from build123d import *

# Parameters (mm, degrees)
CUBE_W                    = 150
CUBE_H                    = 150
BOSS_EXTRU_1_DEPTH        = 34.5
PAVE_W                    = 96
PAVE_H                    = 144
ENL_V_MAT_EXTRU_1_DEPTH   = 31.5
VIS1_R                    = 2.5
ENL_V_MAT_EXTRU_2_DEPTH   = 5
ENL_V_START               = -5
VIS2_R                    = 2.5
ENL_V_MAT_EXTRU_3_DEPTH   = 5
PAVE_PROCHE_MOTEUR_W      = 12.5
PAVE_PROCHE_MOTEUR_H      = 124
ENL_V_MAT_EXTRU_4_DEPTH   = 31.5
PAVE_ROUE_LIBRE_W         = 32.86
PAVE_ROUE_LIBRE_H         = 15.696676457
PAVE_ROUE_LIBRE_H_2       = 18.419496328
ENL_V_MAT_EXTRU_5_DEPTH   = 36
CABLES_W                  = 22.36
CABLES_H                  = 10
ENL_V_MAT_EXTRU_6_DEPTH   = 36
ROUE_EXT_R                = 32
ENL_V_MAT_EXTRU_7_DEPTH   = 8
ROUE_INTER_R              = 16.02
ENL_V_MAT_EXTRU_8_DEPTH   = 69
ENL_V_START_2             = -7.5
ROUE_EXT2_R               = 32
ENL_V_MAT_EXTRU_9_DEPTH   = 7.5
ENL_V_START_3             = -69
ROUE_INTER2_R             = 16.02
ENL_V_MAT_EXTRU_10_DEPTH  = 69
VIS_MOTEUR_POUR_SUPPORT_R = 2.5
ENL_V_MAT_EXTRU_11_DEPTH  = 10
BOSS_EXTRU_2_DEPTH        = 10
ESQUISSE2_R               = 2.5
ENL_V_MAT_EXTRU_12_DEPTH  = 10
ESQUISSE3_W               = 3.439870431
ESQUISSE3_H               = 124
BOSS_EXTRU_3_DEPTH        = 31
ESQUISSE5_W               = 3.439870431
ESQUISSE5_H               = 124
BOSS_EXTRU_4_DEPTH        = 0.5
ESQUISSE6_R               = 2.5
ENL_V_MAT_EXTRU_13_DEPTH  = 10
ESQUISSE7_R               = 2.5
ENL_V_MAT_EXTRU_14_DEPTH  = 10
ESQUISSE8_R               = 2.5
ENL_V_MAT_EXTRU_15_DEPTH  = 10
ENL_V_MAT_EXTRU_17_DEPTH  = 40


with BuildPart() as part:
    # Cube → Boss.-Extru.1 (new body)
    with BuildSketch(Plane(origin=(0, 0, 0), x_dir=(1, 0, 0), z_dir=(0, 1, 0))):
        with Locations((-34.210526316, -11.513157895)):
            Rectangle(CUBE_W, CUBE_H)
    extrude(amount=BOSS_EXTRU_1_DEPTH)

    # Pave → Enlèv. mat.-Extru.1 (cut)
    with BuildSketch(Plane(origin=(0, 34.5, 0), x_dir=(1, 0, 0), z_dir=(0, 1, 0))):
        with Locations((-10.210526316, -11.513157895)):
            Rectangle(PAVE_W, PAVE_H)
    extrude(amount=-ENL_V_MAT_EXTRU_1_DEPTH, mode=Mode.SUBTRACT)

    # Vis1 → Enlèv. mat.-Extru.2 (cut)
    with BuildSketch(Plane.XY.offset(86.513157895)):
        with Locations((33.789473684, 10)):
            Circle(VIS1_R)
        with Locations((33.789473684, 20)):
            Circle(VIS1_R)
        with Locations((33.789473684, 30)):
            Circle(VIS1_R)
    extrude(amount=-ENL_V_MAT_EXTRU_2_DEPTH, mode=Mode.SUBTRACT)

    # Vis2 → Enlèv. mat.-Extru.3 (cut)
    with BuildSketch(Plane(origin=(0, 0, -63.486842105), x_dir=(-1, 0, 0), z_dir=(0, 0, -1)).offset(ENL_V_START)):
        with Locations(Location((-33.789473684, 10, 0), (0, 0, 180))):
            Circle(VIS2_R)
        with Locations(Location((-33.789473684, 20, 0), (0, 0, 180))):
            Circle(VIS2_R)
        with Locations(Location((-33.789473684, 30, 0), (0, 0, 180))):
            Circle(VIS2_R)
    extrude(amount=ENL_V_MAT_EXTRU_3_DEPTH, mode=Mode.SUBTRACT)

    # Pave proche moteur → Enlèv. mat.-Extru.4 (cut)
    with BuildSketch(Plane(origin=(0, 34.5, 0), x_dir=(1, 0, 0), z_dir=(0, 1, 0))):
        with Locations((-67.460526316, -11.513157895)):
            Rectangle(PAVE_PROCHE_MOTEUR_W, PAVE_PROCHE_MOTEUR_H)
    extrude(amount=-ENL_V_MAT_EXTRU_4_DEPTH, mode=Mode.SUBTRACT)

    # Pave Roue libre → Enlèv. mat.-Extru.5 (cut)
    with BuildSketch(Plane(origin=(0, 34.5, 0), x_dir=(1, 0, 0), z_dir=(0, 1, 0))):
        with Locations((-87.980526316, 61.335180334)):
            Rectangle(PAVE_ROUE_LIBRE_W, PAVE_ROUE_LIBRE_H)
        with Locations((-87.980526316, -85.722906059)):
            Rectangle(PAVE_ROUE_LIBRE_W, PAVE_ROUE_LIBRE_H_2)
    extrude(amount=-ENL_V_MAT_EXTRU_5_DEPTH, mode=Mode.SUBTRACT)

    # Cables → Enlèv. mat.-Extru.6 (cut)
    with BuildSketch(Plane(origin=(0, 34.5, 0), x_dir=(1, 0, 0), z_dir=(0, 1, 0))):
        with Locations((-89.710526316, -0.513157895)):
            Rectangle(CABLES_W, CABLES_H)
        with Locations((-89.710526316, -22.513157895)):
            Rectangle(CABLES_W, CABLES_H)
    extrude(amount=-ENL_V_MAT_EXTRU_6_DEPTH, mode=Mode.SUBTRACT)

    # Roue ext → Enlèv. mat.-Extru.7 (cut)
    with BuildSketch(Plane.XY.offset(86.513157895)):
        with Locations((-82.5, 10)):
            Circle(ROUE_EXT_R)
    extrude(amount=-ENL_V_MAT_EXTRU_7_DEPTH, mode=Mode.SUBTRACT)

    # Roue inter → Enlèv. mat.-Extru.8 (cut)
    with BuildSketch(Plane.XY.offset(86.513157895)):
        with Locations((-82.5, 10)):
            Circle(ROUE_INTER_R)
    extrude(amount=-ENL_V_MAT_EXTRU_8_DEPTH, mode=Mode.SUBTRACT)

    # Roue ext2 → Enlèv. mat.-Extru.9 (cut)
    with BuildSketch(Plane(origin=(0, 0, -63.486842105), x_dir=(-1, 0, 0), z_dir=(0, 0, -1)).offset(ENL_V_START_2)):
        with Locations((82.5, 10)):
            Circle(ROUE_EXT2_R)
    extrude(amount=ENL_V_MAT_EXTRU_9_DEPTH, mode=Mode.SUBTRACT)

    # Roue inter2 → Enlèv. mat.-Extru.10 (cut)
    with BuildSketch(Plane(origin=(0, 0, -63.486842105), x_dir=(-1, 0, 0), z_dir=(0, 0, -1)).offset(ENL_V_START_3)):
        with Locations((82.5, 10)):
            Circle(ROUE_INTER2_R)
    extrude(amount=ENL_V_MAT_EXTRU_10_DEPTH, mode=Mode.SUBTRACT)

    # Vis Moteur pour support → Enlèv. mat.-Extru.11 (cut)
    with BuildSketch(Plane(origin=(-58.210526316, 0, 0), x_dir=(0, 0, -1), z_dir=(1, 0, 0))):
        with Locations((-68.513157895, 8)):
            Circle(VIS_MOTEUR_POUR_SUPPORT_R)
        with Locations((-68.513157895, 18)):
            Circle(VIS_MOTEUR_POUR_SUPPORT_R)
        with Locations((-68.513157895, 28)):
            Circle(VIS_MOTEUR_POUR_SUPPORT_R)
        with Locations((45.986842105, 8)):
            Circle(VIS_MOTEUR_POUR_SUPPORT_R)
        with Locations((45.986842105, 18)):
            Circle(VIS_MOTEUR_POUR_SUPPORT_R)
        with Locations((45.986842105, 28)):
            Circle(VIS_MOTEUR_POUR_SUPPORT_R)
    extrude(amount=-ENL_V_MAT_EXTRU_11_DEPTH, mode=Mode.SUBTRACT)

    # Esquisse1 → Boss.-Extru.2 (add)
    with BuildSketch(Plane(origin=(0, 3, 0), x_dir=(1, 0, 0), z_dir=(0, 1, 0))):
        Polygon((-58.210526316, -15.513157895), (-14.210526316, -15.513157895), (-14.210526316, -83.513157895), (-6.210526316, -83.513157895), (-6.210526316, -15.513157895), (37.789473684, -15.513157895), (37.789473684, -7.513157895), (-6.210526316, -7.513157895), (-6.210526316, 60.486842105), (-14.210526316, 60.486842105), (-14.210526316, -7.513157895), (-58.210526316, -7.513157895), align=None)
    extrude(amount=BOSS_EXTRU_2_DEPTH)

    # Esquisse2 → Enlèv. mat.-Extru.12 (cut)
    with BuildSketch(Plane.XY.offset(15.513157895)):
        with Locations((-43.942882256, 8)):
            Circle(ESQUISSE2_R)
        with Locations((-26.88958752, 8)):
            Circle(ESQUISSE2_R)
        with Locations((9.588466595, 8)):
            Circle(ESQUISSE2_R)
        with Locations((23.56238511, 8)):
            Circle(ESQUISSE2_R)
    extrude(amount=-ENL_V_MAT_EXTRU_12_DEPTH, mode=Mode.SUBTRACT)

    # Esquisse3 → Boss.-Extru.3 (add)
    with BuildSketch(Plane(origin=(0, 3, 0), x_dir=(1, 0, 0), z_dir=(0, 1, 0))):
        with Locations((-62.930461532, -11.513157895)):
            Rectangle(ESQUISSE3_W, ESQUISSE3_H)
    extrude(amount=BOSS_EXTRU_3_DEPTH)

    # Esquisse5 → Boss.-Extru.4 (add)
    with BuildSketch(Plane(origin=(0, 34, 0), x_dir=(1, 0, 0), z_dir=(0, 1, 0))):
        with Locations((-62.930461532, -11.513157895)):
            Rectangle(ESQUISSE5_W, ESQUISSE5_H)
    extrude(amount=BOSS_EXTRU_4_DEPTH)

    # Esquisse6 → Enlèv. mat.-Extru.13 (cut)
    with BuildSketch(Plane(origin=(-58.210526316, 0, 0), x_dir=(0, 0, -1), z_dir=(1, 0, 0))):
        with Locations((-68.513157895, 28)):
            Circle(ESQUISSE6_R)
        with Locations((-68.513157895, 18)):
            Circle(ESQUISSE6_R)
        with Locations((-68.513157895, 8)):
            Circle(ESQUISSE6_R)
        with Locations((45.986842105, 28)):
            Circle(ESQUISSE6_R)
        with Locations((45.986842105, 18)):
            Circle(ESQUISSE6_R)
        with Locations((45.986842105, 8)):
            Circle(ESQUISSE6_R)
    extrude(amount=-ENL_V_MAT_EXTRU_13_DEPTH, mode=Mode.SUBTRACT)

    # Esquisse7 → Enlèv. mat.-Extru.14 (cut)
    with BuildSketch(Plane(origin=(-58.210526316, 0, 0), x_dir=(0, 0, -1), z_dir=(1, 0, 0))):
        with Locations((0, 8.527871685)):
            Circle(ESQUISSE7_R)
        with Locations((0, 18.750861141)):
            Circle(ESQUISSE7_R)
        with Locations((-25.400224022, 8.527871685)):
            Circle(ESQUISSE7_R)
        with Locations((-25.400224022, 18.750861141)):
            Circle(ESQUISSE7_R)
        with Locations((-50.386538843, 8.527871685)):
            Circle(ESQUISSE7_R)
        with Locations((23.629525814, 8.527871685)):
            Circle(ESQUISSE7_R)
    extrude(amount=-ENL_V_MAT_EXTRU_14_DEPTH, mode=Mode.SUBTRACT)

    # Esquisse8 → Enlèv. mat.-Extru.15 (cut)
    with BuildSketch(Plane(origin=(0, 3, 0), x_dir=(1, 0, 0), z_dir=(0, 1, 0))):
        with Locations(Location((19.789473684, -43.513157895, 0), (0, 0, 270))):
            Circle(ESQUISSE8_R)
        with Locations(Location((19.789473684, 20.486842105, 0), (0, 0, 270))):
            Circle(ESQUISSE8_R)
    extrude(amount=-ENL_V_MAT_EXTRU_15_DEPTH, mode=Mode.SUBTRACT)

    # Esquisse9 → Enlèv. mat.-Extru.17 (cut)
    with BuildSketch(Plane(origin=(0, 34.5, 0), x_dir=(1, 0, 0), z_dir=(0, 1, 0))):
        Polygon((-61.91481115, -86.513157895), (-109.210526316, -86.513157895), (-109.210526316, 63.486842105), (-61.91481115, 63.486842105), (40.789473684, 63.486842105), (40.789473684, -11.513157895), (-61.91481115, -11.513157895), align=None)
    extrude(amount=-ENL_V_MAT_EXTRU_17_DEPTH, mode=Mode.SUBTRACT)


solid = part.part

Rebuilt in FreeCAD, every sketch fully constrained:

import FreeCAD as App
import Part
import Sketcher
from FreeCAD import Vector

doc = App.newDocument("Part")
body = doc.addObject("PartDesign::Body", "Body")

sketch1 = doc.addObject("Sketcher::SketchObject", "Sketch")
body.addObject(sketch1)
sketch1.AttachmentSupport = (doc.XZ_Plane, [""])
sketch1.MapMode = "FlatFace"
sketch1.addGeometry(Part.LineSegment(Vector(-109, -63, 0), Vector(-109, 87, 0)), False)
sketch1.addGeometry(Part.LineSegment(Vector(-109, 87, 0), Vector(41, 87, 0)), False)
sketch1.addGeometry(Part.LineSegment(Vector(41, 87, 0), Vector(41, -63, 0)), False)
sketch1.addGeometry(Part.LineSegment(Vector(41, -63, 0), Vector(-109, -63, 0)), False)
sketch1.addConstraint(Sketcher.Constraint("Coincident", 0, 2, 1, 1))
sketch1.addConstraint(Sketcher.Constraint("Coincident", 1, 2, 2, 1))
sketch1.addConstraint(Sketcher.Constraint("Coincident", 2, 2, 3, 1))
sketch1.addConstraint(Sketcher.Constraint("Coincident", 3, 2, 0, 1))
sketch1.addConstraint(Sketcher.Constraint("Vertical", 0))
sketch1.addConstraint(Sketcher.Constraint("Horizontal", 1))
sketch1.addConstraint(Sketcher.Constraint("Vertical", 2))
sketch1.addConstraint(Sketcher.Constraint("Horizontal", 3))
sketch1.addConstraint(Sketcher.Constraint("Equal", 3, 0))
sketch1.addConstraint(Sketcher.Constraint("DistanceX", 1, 1, 1, 2, 150.0))
sketch1.addConstraint(Sketcher.Constraint("DistanceX", 0, 2, -1, 1, 109.210526))
sketch1.addConstraint(Sketcher.Constraint("DistanceY", -1, 1, 0, 2, 86.513158))
pad1 = doc.addObject("PartDesign::Pad", "Pad")
body.addObject(pad1)
pad1.Profile = sketch1
pad1.Length = 34.5
pad1.Reversed = True

sketch2 = doc.addObject("Sketcher::SketchObject", "Sketch001")
body.addObject(sketch2)
sketch2.AttachmentSupport = (doc.XZ_Plane, [""])
sketch2.MapMode = "FlatFace"
sketch2.AttachmentOffset = App.Placement(Vector(0, 0, -34.5), App.Rotation())
sketch2.addGeometry(Part.LineSegment(Vector(-58, -60, 0), Vector(-58, 84, 0)), False)
sketch2.addGeometry(Part.LineSegment(Vector(-58, 84, 0), Vector(38, 84, 0)), False)
sketch2.addGeometry(Part.LineSegment(Vector(38, 84, 0), Vector(38, -60, 0)), False)
sketch2.addGeometry(Part.LineSegment(Vector(38, -60, 0), Vector(-58, -60, 0)), False)
sketch2.addConstraint(Sketcher.Constraint("Coincident", 0, 2, 1, 1))
sketch2.addConstraint(Sketcher.Constraint("Coincident", 1, 2, 2, 1))
sketch2.addConstraint(Sketcher.Constraint("Coincident", 2, 2, 3, 1))
sketch2.addConstraint(Sketcher.Constraint("Coincident", 3, 2, 0, 1))
sketch2.addConstraint(Sketcher.Constraint("Vertical", 0))
sketch2.addConstraint(Sketcher.Constraint("Horizontal", 1))
sketch2.addConstraint(Sketcher.Constraint("Vertical", 2))
sketch2.addConstraint(Sketcher.Constraint("Horizontal", 3))
sketch2.addConstraint(Sketcher.Constraint("DistanceX", 1, 1, 1, 2, 96.0))
sketch2.addConstraint(Sketcher.Constraint("DistanceY", 0, 1, 0, 2, 144.0))
sketch2.addConstraint(Sketcher.Constraint("DistanceX", 0, 2, -1, 1, 58.210526))
sketch2.addConstraint(Sketcher.Constraint("DistanceY", -1, 1, 0, 2, 83.513158))
pocket1 = doc.addObject("PartDesign::Pocket", "Pocket")
body.addObject(pocket1)
pocket1.Profile = sketch2
pocket1.Length = 31.5
pocket1.Reversed = True

sketch3 = doc.addObject("Sketcher::SketchObject", "Sketch002")
body.addObject(sketch3)
sketch3.AttachmentSupport = (doc.XY_Plane, [""])
sketch3.MapMode = "FlatFace"
sketch3.AttachmentOffset = App.Placement(Vector(0, 0, 86.513158), App.Rotation())
sketch3.addGeometry(Part.Circle(Vector(33.8, 10, 0), Vector(0, 0, 1), 2.5), False)
sketch3.addGeometry(Part.Circle(Vector(33.8, 20, 0), Vector(0, 0, 1), 2.5), False)
sketch3.addGeometry(Part.Circle(Vector(33.8, 30, 0), Vector(0, 0, 1), 2.5), False)
sketch3.addConstraint(Sketcher.Constraint("Equal", 0, 1))
sketch3.addConstraint(Sketcher.Constraint("Equal", 1, 2))
sketch3.addConstraint(Sketcher.Constraint("Vertical", 0, 3, 1, 3))
sketch3.addConstraint(Sketcher.Constraint("Vertical", 1, 3, 2, 3))
sketch3.addConstraint(Sketcher.Constraint("Diameter", 0, 5.0))
sketch3.addConstraint(Sketcher.Constraint("DistanceY", -1, 1, 0, 3, 10.0))
sketch3.addConstraint(Sketcher.Constraint("DistanceY", -1, 1, 1, 3, 20.0))
sketch3.addConstraint(Sketcher.Constraint("DistanceY", -1, 1, 2, 3, 30.0))
sketch3.addConstraint(Sketcher.Constraint("DistanceX", -1, 1, 0, 3, 33.789474))
pocket2 = doc.addObject("PartDesign::Pocket", "Pocket001")
body.addObject(pocket2)
pocket2.Profile = sketch3
pocket2.Length = 5

sketch4 = doc.addObject("Sketcher::SketchObject", "Sketch003")
body.addObject(sketch4)
sketch4.AttachmentSupport = (doc.XY_Plane, [""])
sketch4.MapMode = "FlatFace"
sketch4.AttachmentOffset = App.Placement(Vector(0, 0, -58.486842), App.Rotation())
sketch4.addGeometry(Part.Circle(Vector(33.8, 10, 0), Vector(0, 0, 1), 2.5), False)
sketch4.addGeometry(Part.Circle(Vector(33.8, 20, 0), Vector(0, 0, 1), 2.5), False)
sketch4.addGeometry(Part.Circle(Vector(33.8, 30, 0), Vector(0, 0, 1), 2.5), False)
sketch4.addConstraint(Sketcher.Constraint("Equal", 0, 1))
sketch4.addConstraint(Sketcher.Constraint("Equal", 1, 2))
sketch4.addConstraint(Sketcher.Constraint("Vertical", 0, 3, 1, 3))
sketch4.addConstraint(Sketcher.Constraint("Vertical", 1, 3, 2, 3))
sketch4.addConstraint(Sketcher.Constraint("Diameter", 0, 5.0))
sketch4.addConstraint(Sketcher.Constraint("DistanceY", -1, 1, 0, 3, 10.0))
sketch4.addConstraint(Sketcher.Constraint("DistanceY", -1, 1, 1, 3, 20.0))
sketch4.addConstraint(Sketcher.Constraint("DistanceY", -1, 1, 2, 3, 30.0))
sketch4.addConstraint(Sketcher.Constraint("DistanceX", -1, 1, 0, 3, 33.789474))
pocket3 = doc.addObject("PartDesign::Pocket", "Pocket002")
body.addObject(pocket3)
pocket3.Profile = sketch4
pocket3.Length = 5

sketch5 = doc.addObject("Sketcher::SketchObject", "Sketch004")
body.addObject(sketch5)
sketch5.AttachmentSupport = (doc.XZ_Plane, [""])
sketch5.MapMode = "FlatFace"
sketch5.AttachmentOffset = App.Placement(Vector(0, 0, -34.5), App.Rotation())
sketch5.addGeometry(Part.LineSegment(Vector(-74, -50, 0), Vector(-74, 74, 0)), False)
sketch5.addGeometry(Part.LineSegment(Vector(-74, 74, 0), Vector(-61, 74, 0)), False)
sketch5.addGeometry(Part.LineSegment(Vector(-61, 74, 0), Vector(-61, -50, 0)), False)
sketch5.addGeometry(Part.LineSegment(Vector(-61, -50, 0), Vector(-74, -50, 0)), False)
sketch5.addConstraint(Sketcher.Constraint("Coincident", 0, 2, 1, 1))
sketch5.addConstraint(Sketcher.Constraint("Coincident", 1, 2, 2, 1))
sketch5.addConstraint(Sketcher.Constraint("Coincident", 2, 2, 3, 1))
sketch5.addConstraint(Sketcher.Constraint("Coincident", 3, 2, 0, 1))
sketch5.addConstraint(Sketcher.Constraint("Vertical", 0))
sketch5.addConstraint(Sketcher.Constraint("Horizontal", 1))
sketch5.addConstraint(Sketcher.Constraint("Vertical", 2))
sketch5.addConstraint(Sketcher.Constraint("Horizontal", 3))
sketch5.addConstraint(Sketcher.Constraint("DistanceY", 0, 1, 0, 2, 124.0))
sketch5.addConstraint(Sketcher.Constraint("DistanceX", 1, 1, 1, 2, 12.5))
sketch5.addConstraint(Sketcher.Constraint("DistanceX", 0, 2, -1, 1, 73.710526))
sketch5.addConstraint(Sketcher.Constraint("DistanceY", -1, 1, 0, 2, 73.513158))
pocket4 = doc.addObject("PartDesign::Pocket", "Pocket003")
body.addObject(pocket4)
pocket4.Profile = sketch5
pocket4.Length = 31.5
pocket4.Reversed = True

sketch6 = doc.addObject("Sketcher::SketchObject", "Sketch005")
body.addObject(sketch6)
sketch6.AttachmentSupport = (doc.XZ_Plane, [""])
sketch6.MapMode = "FlatFace"
sketch6.AttachmentOffset = App.Placement(Vector(0, 0, -34.5), App.Rotation())
sketch6.addGeometry(Part.LineSegment(Vector(-104, -69, 0), Vector(-104, -53, 0)), False)
sketch6.addGeometry(Part.LineSegment(Vector(-104, -53, 0), Vector(-72, -53, 0)), False)
sketch6.addGeometry(Part.LineSegment(Vector(-72, -53, 0), Vector(-72, -69, 0)), False)
sketch6.addGeometry(Part.LineSegment(Vector(-72, -69, 0), Vector(-104, -69, 0)), False)
sketch6.addGeometry(Part.LineSegment(Vector(-104, 77, 0), Vector(-104, 95, 0)), False)
sketch6.addGeometry(Part.LineSegment(Vector(-104, 95, 0), Vector(-72, 95, 0)), False)
sketch6.addGeometry(Part.LineSegment(Vector(-72, 95, 0), Vector(-72, 77, 0)), False)
sketch6.addGeometry(Part.LineSegment(Vector(-72, 77, 0), Vector(-104, 77, 0)), False)
sketch6.addConstraint(Sketcher.Constraint("Coincident", 0, 2, 1, 1))
sketch6.addConstraint(Sketcher.Constraint("Coincident", 1, 2, 2, 1))
sketch6.addConstraint(Sketcher.Constraint("Coincident", 2, 2, 3, 1))
sketch6.addConstraint(Sketcher.Constraint("Coincident", 3, 2, 0, 1))
sketch6.addConstraint(Sketcher.Constraint("Coincident", 4, 2, 5, 1))
sketch6.addConstraint(Sketcher.Constraint("Coincident", 5, 2, 6, 1))
sketch6.addConstraint(Sketcher.Constraint("Coincident", 6, 2, 7, 1))
sketch6.addConstraint(Sketcher.Constraint("Coincident", 7, 2, 4, 1))
sketch6.addConstraint(Sketcher.Constraint("Vertical", 0))
sketch6.addConstraint(Sketcher.Constraint("Horizontal", 1))
sketch6.addConstraint(Sketcher.Constraint("Vertical", 2))
sketch6.addConstraint(Sketcher.Constraint("Horizontal", 3))
sketch6.addConstraint(Sketcher.Constraint("Vertical", 4))
sketch6.addConstraint(Sketcher.Constraint("Horizontal", 5))
sketch6.addConstraint(Sketcher.Constraint("Vertical", 6))
sketch6.addConstraint(Sketcher.Constraint("Horizontal", 7))
sketch6.addConstraint(Sketcher.Constraint("Vertical", 3, 2, 4, 2))
sketch6.addConstraint(Sketcher.Constraint("Vertical", 2, 2, 5, 2))
sketch6.addConstraint(Sketcher.Constraint("DistanceY", 1, 2, 6, 2, 130.0))
sketch6.addConstraint(Sketcher.Constraint("DistanceX", 1, 1, 1, 2, 32.86))
sketch6.addConstraint(Sketcher.Constraint("DistanceY", 0, 1, 0, 2, 15.696676))
sketch6.addConstraint(Sketcher.Constraint("DistanceY", 4, 1, 4, 2, 18.419496))
sketch6.addConstraint(Sketcher.Constraint("DistanceY", 2, 2, -1, 1, 69.183519))
sketch6.addConstraint(Sketcher.Constraint("DistanceX", 0, 2, -1, 1, 104.410526))
pocket5 = doc.addObject("PartDesign::Pocket", "Pocket004")
body.addObject(pocket5)
pocket5.Profile = sketch6
pocket5.Length = 36
pocket5.Reversed = True

sketch7 = doc.addObject("Sketcher::SketchObject", "Sketch006")
body.addObject(sketch7)
sketch7.AttachmentSupport = (doc.XZ_Plane, [""])
sketch7.MapMode = "FlatFace"
sketch7.AttachmentOffset = App.Placement(Vector(0, 0, -34.5), App.Rotation())
sketch7.addGeometry(Part.LineSegment(Vector(-101, -4, 0), Vector(-101, 6, 0)), False)
sketch7.addGeometry(Part.LineSegment(Vector(-101, 6, 0), Vector(-79, 6, 0)), False)
sketch7.addGeometry(Part.LineSegment(Vector(-79, 6, 0), Vector(-79, -4, 0)), False)
sketch7.addGeometry(Part.LineSegment(Vector(-79, -4, 0), Vector(-101, -4, 0)), False)
sketch7.addGeometry(Part.LineSegment(Vector(-101, 18, 0), Vector(-101, 28, 0)), False)
sketch7.addGeometry(Part.LineSegment(Vector(-101, 28, 0), Vector(-79, 28, 0)), False)
sketch7.addGeometry(Part.LineSegment(Vector(-79, 28, 0), Vector(-79, 18, 0)), False)
sketch7.addGeometry(Part.LineSegment(Vector(-79, 18, 0), Vector(-101, 18, 0)), False)
sketch7.addConstraint(Sketcher.Constraint("Coincident", 0, 2, 1, 1))
sketch7.addConstraint(Sketcher.Constraint("Coincident", 1, 2, 2, 1))
sketch7.addConstraint(Sketcher.Constraint("Coincident", 2, 2, 3, 1))
sketch7.addConstraint(Sketcher.Constraint("Coincident", 3, 2, 0, 1))
sketch7.addConstraint(Sketcher.Constraint("Coincident", 4, 2, 5, 1))
sketch7.addConstraint(Sketcher.Constraint("Coincident", 5, 2, 6, 1))
sketch7.addConstraint(Sketcher.Constraint("Coincident", 6, 2, 7, 1))
sketch7.addConstraint(Sketcher.Constraint("Coincident", 7, 2, 4, 1))
sketch7.addConstraint(Sketcher.Constraint("Vertical", 0))
sketch7.addConstraint(Sketcher.Constraint("Horizontal", 1))
sketch7.addConstraint(Sketcher.Constraint("Vertical", 2))
sketch7.addConstraint(Sketcher.Constraint("Horizontal", 3))
sketch7.addConstraint(Sketcher.Constraint("Vertical", 4))
sketch7.addConstraint(Sketcher.Constraint("Horizontal", 5))
sketch7.addConstraint(Sketcher.Constraint("Vertical", 6))
sketch7.addConstraint(Sketcher.Constraint("Horizontal", 7))
sketch7.addConstraint(Sketcher.Constraint("Vertical", 3, 2, 4, 2))
sketch7.addConstraint(Sketcher.Constraint("Vertical", 2, 2, 5, 2))
sketch7.addConstraint(Sketcher.Constraint("Equal", 2, 4))
sketch7.addConstraint(Sketcher.Constraint("DistanceY", 0, 1, 0, 2, 10.0))
sketch7.addConstraint(Sketcher.Constraint("DistanceY", 0, 2, 4, 2, 22.0))
sketch7.addConstraint(Sketcher.Constraint("DistanceX", 1, 1, 1, 2, 22.36))
sketch7.addConstraint(Sketcher.Constraint("DistanceX", 0, 2, -1, 1, 100.890526))
sketch7.addConstraint(Sketcher.Constraint("DistanceY", -1, 1, 0, 2, 5.513158))
pocket6 = doc.addObject("PartDesign::Pocket", "Pocket005")
body.addObject(pocket6)
pocket6.Profile = sketch7
pocket6.Length = 36
pocket6.Reversed = True

sketch8 = doc.addObject("Sketcher::SketchObject", "Sketch007")
body.addObject(sketch8)
sketch8.AttachmentSupport = (doc.XY_Plane, [""])
sketch8.MapMode = "FlatFace"
sketch8.AttachmentOffset = App.Placement(Vector(0, 0, 86.513158), App.Rotation())
sketch8.addGeometry(Part.Circle(Vector(-82, 10, 0), Vector(0, 0, 1), 32), False)
sketch8.addConstraint(Sketcher.Constraint("Diameter", 0, 64.0))
sketch8.addConstraint(Sketcher.Constraint("DistanceY", -1, 1, 0, 3, 10.0))
sketch8.addConstraint(Sketcher.Constraint("DistanceX", 0, 3, -1, 1, 82.5))
pocket7 = doc.addObject("PartDesign::Pocket", "Pocket006")
body.addObject(pocket7)
pocket7.Profile = sketch8
pocket7.Length = 8

sketch9 = doc.addObject("Sketcher::SketchObject", "Sketch008")
body.addObject(sketch9)
sketch9.AttachmentSupport = (doc.XY_Plane, [""])
sketch9.MapMode = "FlatFace"
sketch9.AttachmentOffset = App.Placement(Vector(0, 0, 86.513158), App.Rotation())
sketch9.addGeometry(Part.Circle(Vector(-82, 10, 0), Vector(0, 0, 1), 16), False)
sketch9.addConstraint(Sketcher.Constraint("Diameter", 0, 32.04))
sketch9.addConstraint(Sketcher.Constraint("DistanceY", -1, 1, 0, 3, 10.0))
sketch9.addConstraint(Sketcher.Constraint("DistanceX", 0, 3, -1, 1, 82.5))
pocket8 = doc.addObject("PartDesign::Pocket", "Pocket007")
body.addObject(pocket8)
pocket8.Profile = sketch9
pocket8.Length = 69

sketch10 = doc.addObject("Sketcher::SketchObject", "Sketch009")
body.addObject(sketch10)
sketch10.AttachmentSupport = (doc.XY_Plane, [""])
sketch10.MapMode = "FlatFace"
sketch10.AttachmentOffset = App.Placement(Vector(0, 0, -55.986842), App.Rotation())
sketch10.addGeometry(Part.Circle(Vector(-82, 10, 0), Vector(0, 0, 1), 32), False)
sketch10.addConstraint(Sketcher.Constraint("Diameter", 0, 64.0))
sketch10.addConstraint(Sketcher.Constraint("DistanceY", -1, 1, 0, 3, 10.0))
sketch10.addConstraint(Sketcher.Constraint("DistanceX", 0, 3, -1, 1, 82.5))
pocket9 = doc.addObject("PartDesign::Pocket", "Pocket008")
body.addObject(pocket9)
pocket9.Profile = sketch10
pocket9.Length = 7.5

sketch11 = doc.addObject("Sketcher::SketchObject", "Sketch010")
body.addObject(sketch11)
sketch11.AttachmentSupport = (doc.XY_Plane, [""])
sketch11.MapMode = "FlatFace"
sketch11.AttachmentOffset = App.Placement(Vector(0, 0, 5.513158), App.Rotation())
sketch11.addGeometry(Part.Circle(Vector(-82, 10, 0), Vector(0, 0, 1), 16), False)
sketch11.addConstraint(Sketcher.Constraint("Diameter", 0, 32.04))
sketch11.addConstraint(Sketcher.Constraint("DistanceY", -1, 1, 0, 3, 10.0))
sketch11.addConstraint(Sketcher.Constraint("DistanceX", 0, 3, -1, 1, 82.5))
pocket10 = doc.addObject("PartDesign::Pocket", "Pocket009")
body.addObject(pocket10)
pocket10.Profile = sketch11
pocket10.Length = 69

sketch12 = doc.addObject("Sketcher::SketchObject", "Sketch011")
body.addObject(sketch12)
sketch12.AttachmentSupport = (doc.YZ_Plane, [""])
sketch12.MapMode = "FlatFace"
sketch12.AttachmentOffset = App.Placement(Vector(0, 0, -58.210526), App.Rotation())
sketch12.addGeometry(Part.Circle(Vector(8, 68.5, 0), Vector(0, 0, 1), 2.5), False)
sketch12.addGeometry(Part.Circle(Vector(18, 68.5, 0), Vector(0, 0, 1), 2.5), False)
sketch12.addGeometry(Part.Circle(Vector(28, 68.5, 0), Vector(0, 0, 1), 2.5), False)
sketch12.addGeometry(Part.Circle(Vector(8, -46, 0), Vector(0, 0, 1), 2.5), False)
sketch12.addGeometry(Part.Circle(Vector(18, -46, 0), Vector(0, 0, 1), 2.5), False)
sketch12.addGeometry(Part.Circle(Vector(28, -46, 0), Vector(0, 0, 1), 2.5), False)
sketch12.addConstraint(Sketcher.Constraint("Equal", 0, 1))
sketch12.addConstraint(Sketcher.Constraint("Equal", 1, 2))
sketch12.addConstraint(Sketcher.Constraint("Equal", 2, 3))
sketch12.addConstraint(Sketcher.Constraint("Equal", 3, 4))
sketch12.addConstraint(Sketcher.Constraint("Equal", 4, 5))
sketch12.addConstraint(Sketcher.Constraint("Horizontal", 0, 3, 1, 3))
sketch12.addConstraint(Sketcher.Constraint("Horizontal", 1, 3, 2, 3))
sketch12.addConstraint(Sketcher.Constraint("Horizontal", 3, 3, 4, 3))
sketch12.addConstraint(Sketcher.Constraint("Horizontal", 4, 3, 5, 3))
sketch12.addConstraint(Sketcher.Constraint("Vertical", 0, 3, 3, 3))
sketch12.addConstraint(Sketcher.Constraint("Vertical", 1, 3, 4, 3))
sketch12.addConstraint(Sketcher.Constraint("Vertical", 2, 3, 5, 3))
sketch12.addConstraint(Sketcher.Constraint("Diameter", 0, 5.0))
sketch12.addConstraint(Sketcher.Constraint("DistanceX", -1, 1, 0, 3, 8.0))
sketch12.addConstraint(Sketcher.Constraint("DistanceX", -1, 1, 1, 3, 18.0))
sketch12.addConstraint(Sketcher.Constraint("DistanceX", -1, 1, 2, 3, 28.0))
sketch12.addConstraint(Sketcher.Constraint("DistanceY", 3, 3, 0, 3, 114.5))
sketch12.addConstraint(Sketcher.Constraint("DistanceY", -1, 1, 0, 3, 68.513158))
pocket11 = doc.addObject("PartDesign::Pocket", "Pocket010")
body.addObject(pocket11)
pocket11.Profile = sketch12
pocket11.Length = 10

sketch13 = doc.addObject("Sketcher::SketchObject", "Sketch012")
body.addObject(sketch13)
sketch13.AttachmentSupport = (doc.XZ_Plane, [""])
sketch13.MapMode = "FlatFace"
sketch13.AttachmentOffset = App.Placement(Vector(0, 0, -3), App.Rotation())
sketch13.addGeometry(Part.LineSegment(Vector(-58, 16, 0), Vector(-14, 16, 0)), False)
sketch13.addGeometry(Part.LineSegment(Vector(-14, 16, 0), Vector(-14, 84, 0)), False)
sketch13.addGeometry(Part.LineSegment(Vector(-14, 84, 0), Vector(-6, 84, 0)), False)
sketch13.addGeometry(Part.LineSegment(Vector(-6, 84, 0), Vector(-6, 16, 0)), False)
sketch13.addGeometry(Part.LineSegment(Vector(-6, 16, 0), Vector(38, 16, 0)), False)
sketch13.addGeometry(Part.LineSegment(Vector(38, 16, 0), Vector(38, 8, 0)), False)
sketch13.addGeometry(Part.LineSegment(Vector(38, 8, 0), Vector(-6, 8, 0)), False)
sketch13.addGeometry(Part.LineSegment(Vector(-6, 8, 0), Vector(-6, -60, 0)), False)
sketch13.addGeometry(Part.LineSegment(Vector(-6, -60, 0), Vector(-14, -60, 0)), False)
sketch13.addGeometry(Part.LineSegment(Vector(-14, -60, 0), Vector(-14, 8, 0)), False)
sketch13.addGeometry(Part.LineSegment(Vector(-14, 8, 0), Vector(-58, 8, 0)), False)
sketch13.addGeometry(Part.LineSegment(Vector(-58, 8, 0), Vector(-58, 16, 0)), False)
sketch13.addConstraint(Sketcher.Constraint("Coincident", 0, 2, 1, 1))
sketch13.addConstraint(Sketcher.Constraint("Coincident", 1, 2, 2, 1))
sketch13.addConstraint(Sketcher.Constraint("Coincident", 2, 2, 3, 1))
sketch13.addConstraint(Sketcher.Constraint("Coincident", 3, 2, 4, 1))
sketch13.addConstraint(Sketcher.Constraint("Coincident", 4, 2, 5, 1))
sketch13.addConstraint(Sketcher.Constraint("Coincident", 5, 2, 6, 1))
sketch13.addConstraint(Sketcher.Constraint("Coincident", 6, 2, 7, 1))
sketch13.addConstraint(Sketcher.Constraint("Coincident", 7, 2, 8, 1))
sketch13.addConstraint(Sketcher.Constraint("Coincident", 8, 2, 9, 1))
sketch13.addConstraint(Sketcher.Constraint("Coincident", 9, 2, 10, 1))
sketch13.addConstraint(Sketcher.Constraint("Coincident", 10, 2, 11, 1))
sketch13.addConstraint(Sketcher.Constraint("Coincident", 11, 2, 0, 1))
sketch13.addConstraint(Sketcher.Constraint("Horizontal", 0))
sketch13.addConstraint(Sketcher.Constraint("Vertical", 1))
sketch13.addConstraint(Sketcher.Constraint("Horizontal", 2))
sketch13.addConstraint(Sketcher.Constraint("Vertical", 3))
sketch13.addConstraint(Sketcher.Constraint("Horizontal", 4))
sketch13.addConstraint(Sketcher.Constraint("Vertical", 5))
sketch13.addConstraint(Sketcher.Constraint("Horizontal", 6))
sketch13.addConstraint(Sketcher.Constraint("Vertical", 7))
sketch13.addConstraint(Sketcher.Constraint("Horizontal", 8))
sketch13.addConstraint(Sketcher.Constraint("Vertical", 9))
sketch13.addConstraint(Sketcher.Constraint("Horizontal", 10))
sketch13.addConstraint(Sketcher.Constraint("Vertical", 11))
sketch13.addConstraint(Sketcher.Constraint("Horizontal", 0, 2, 3, 2))
sketch13.addConstraint(Sketcher.Constraint("Horizontal", 6, 2, 9, 2))
sketch13.addConstraint(Sketcher.Constraint("Vertical", 3, 2, 6, 2))
sketch13.addConstraint(Sketcher.Constraint("Vertical", 1, 2, 8, 2))
sketch13.addConstraint(Sketcher.Constraint("Equal", 0, 4))
sketch13.addConstraint(Sketcher.Constraint("Equal", 8, 5))
sketch13.addConstraint(Sketcher.Constraint("Equal", 3, 7))
sketch13.addConstraint(Sketcher.Constraint("DistanceX", 0, 1, 0, 2, 44.0))
sketch13.addConstraint(Sketcher.Constraint("DistanceX", 2, 1, 2, 2, 8.0))
sketch13.addConstraint(Sketcher.Constraint("DistanceY", 1, 1, 1, 2, 68.0))
sketch13.addConstraint(Sketcher.Constraint("DistanceX", 0, 2, -1, 1, 14.210526))
sketch13.addConstraint(Sketcher.Constraint("DistanceY", -1, 1, 0, 2, 15.513158))
pad2 = doc.addObject("PartDesign::Pad", "Pad001")
body.addObject(pad2)
pad2.Profile = sketch13
pad2.Length = 10
pad2.Reversed = True

sketch14 = doc.addObject("Sketcher::SketchObject", "Sketch013")
body.addObject(sketch14)
sketch14.AttachmentSupport = (doc.XY_Plane, [""])
sketch14.MapMode = "FlatFace"
sketch14.AttachmentOffset = App.Placement(Vector(0, 0, 15.513158), App.Rotation())
sketch14.addGeometry(Part.Circle(Vector(-43.9, 8, 0), Vector(0, 0, 1), 2.5), False)
sketch14.addGeometry(Part.Circle(Vector(-26.9, 8, 0), Vector(0, 0, 1), 2.5), False)
sketch14.addGeometry(Part.Circle(Vector(9.6, 8, 0), Vector(0, 0, 1), 2.5), False)
sketch14.addGeometry(Part.Circle(Vector(23.6, 8, 0), Vector(0, 0, 1), 2.5), False)
sketch14.addConstraint(Sketcher.Constraint("Equal", 0, 1))
sketch14.addConstraint(Sketcher.Constraint("Equal", 1, 2))
sketch14.addConstraint(Sketcher.Constraint("Equal", 2, 3))
sketch14.addConstraint(Sketcher.Constraint("Horizontal", 0, 3, 1, 3))
sketch14.addConstraint(Sketcher.Constraint("Horizontal", 1, 3, 2, 3))
sketch14.addConstraint(Sketcher.Constraint("Horizontal", 2, 3, 3, 3))
sketch14.addConstraint(Sketcher.Constraint("Diameter", 0, 5.0))
sketch14.addConstraint(Sketcher.Constraint("DistanceY", -1, 1, 0, 3, 8.0))
sketch14.addConstraint(Sketcher.Constraint("DistanceX", 0, 3, 2, 3, 53.531349))
sketch14.addConstraint(Sketcher.Constraint("DistanceX", 2, 3, 3, 3, 13.973919))
sketch14.addConstraint(Sketcher.Constraint("DistanceX", 0, 3, -1, 1, 43.942882))
sketch14.addConstraint(Sketcher.Constraint("DistanceX", 1, 3, -1, 1, 26.889588))
pocket12 = doc.addObject("PartDesign::Pocket", "Pocket011")
body.addObject(pocket12)
pocket12.Profile = sketch14
pocket12.Length = 10

sketch15 = doc.addObject("Sketcher::SketchObject", "Sketch014")
body.addObject(sketch15)
sketch15.AttachmentSupport = (doc.XZ_Plane, [""])
sketch15.MapMode = "FlatFace"
sketch15.AttachmentOffset = App.Placement(Vector(0, 0, -3), App.Rotation())
sketch15.addGeometry(Part.LineSegment(Vector(-64.7, -50.5, 0), Vector(-64.7, 73.5, 0)), False)
sketch15.addGeometry(Part.LineSegment(Vector(-64.7, 73.5, 0), Vector(-61.2, 73.5, 0)), False)
sketch15.addGeometry(Part.LineSegment(Vector(-61.2, 73.5, 0), Vector(-61.2, -50.5, 0)), False)
sketch15.addGeometry(Part.LineSegment(Vector(-61.2, -50.5, 0), Vector(-64.7, -50.5, 0)), False)
sketch15.addConstraint(Sketcher.Constraint("Coincident", 0, 2, 1, 1))
sketch15.addConstraint(Sketcher.Constraint("Coincident", 1, 2, 2, 1))
sketch15.addConstraint(Sketcher.Constraint("Coincident", 2, 2, 3, 1))
sketch15.addConstraint(Sketcher.Constraint("Coincident", 3, 2, 0, 1))
sketch15.addConstraint(Sketcher.Constraint("Vertical", 0))
sketch15.addConstraint(Sketcher.Constraint("Horizontal", 1))
sketch15.addConstraint(Sketcher.Constraint("Vertical", 2))
sketch15.addConstraint(Sketcher.Constraint("Horizontal", 3))
sketch15.addConstraint(Sketcher.Constraint("DistanceY", 0, 1, 0, 2, 124.0))
sketch15.addConstraint(Sketcher.Constraint("DistanceX", 1, 1, 1, 2, 3.43987))
sketch15.addConstraint(Sketcher.Constraint("DistanceX", 0, 2, -1, 1, 64.650397))
sketch15.addConstraint(Sketcher.Constraint("DistanceY", -1, 1, 0, 2, 73.513158))
pad3 = doc.addObject("PartDesign::Pad", "Pad002")
body.addObject(pad3)
pad3.Profile = sketch15
pad3.Length = 31
pad3.Reversed = True

sketch16 = doc.addObject("Sketcher::SketchObject", "Sketch015")
body.addObject(sketch16)
sketch16.AttachmentSupport = (doc.XZ_Plane, [""])
sketch16.MapMode = "FlatFace"
sketch16.AttachmentOffset = App.Placement(Vector(0, 0, -34), App.Rotation())
sketch16.addGeometry(Part.LineSegment(Vector(-64.7, -50.5, 0), Vector(-64.7, 73.5, 0)), False)
sketch16.addGeometry(Part.LineSegment(Vector(-64.7, 73.5, 0), Vector(-61.2, 73.5, 0)), False)
sketch16.addGeometry(Part.LineSegment(Vector(-61.2, 73.5, 0), Vector(-61.2, -50.5, 0)), False)
sketch16.addGeometry(Part.LineSegment(Vector(-61.2, -50.5, 0), Vector(-64.7, -50.5, 0)), False)
sketch16.addConstraint(Sketcher.Constraint("Coincident", 0, 2, 1, 1))
sketch16.addConstraint(Sketcher.Constraint("Coincident", 1, 2, 2, 1))
sketch16.addConstraint(Sketcher.Constraint("Coincident", 2, 2, 3, 1))
sketch16.addConstraint(Sketcher.Constraint("Coincident", 3, 2, 0, 1))
sketch16.addConstraint(Sketcher.Constraint("Vertical", 0))
sketch16.addConstraint(Sketcher.Constraint("Horizontal", 1))
sketch16.addConstraint(Sketcher.Constraint("Vertical", 2))
sketch16.addConstraint(Sketcher.Constraint("Horizontal", 3))
sketch16.addConstraint(Sketcher.Constraint("DistanceY", 0, 1, 0, 2, 124.0))
sketch16.addConstraint(Sketcher.Constraint("DistanceX", 1, 1, 1, 2, 3.43987))
sketch16.addConstraint(Sketcher.Constraint("DistanceX", 0, 2, -1, 1, 64.650397))
sketch16.addConstraint(Sketcher.Constraint("DistanceY", -1, 1, 0, 2, 73.513158))
pad4 = doc.addObject("PartDesign::Pad", "Pad003")
body.addObject(pad4)
pad4.Profile = sketch16
pad4.Length = 0.5
pad4.Reversed = True

sketch17 = doc.addObject("Sketcher::SketchObject", "Sketch016")
body.addObject(sketch17)
sketch17.AttachmentSupport = (doc.YZ_Plane, [""])
sketch17.MapMode = "FlatFace"
sketch17.AttachmentOffset = App.Placement(Vector(0, 0, -58.210526), App.Rotation())
sketch17.addGeometry(Part.Circle(Vector(28, 68.5, 0), Vector(0, 0, 1), 2.5), False)
sketch17.addGeometry(Part.Circle(Vector(18, 68.5, 0), Vector(0, 0, 1), 2.5), False)
sketch17.addGeometry(Part.Circle(Vector(8, 68.5, 0), Vector(0, 0, 1), 2.5), False)
sketch17.addGeometry(Part.Circle(Vector(28, -46, 0), Vector(0, 0, 1), 2.5), False)
sketch17.addGeometry(Part.Circle(Vector(18, -46, 0), Vector(0, 0, 1), 2.5), False)
sketch17.addGeometry(Part.Circle(Vector(8, -46, 0), Vector(0, 0, 1), 2.5), False)
sketch17.addConstraint(Sketcher.Constraint("Equal", 0, 1))
sketch17.addConstraint(Sketcher.Constraint("Equal", 1, 2))
sketch17.addConstraint(Sketcher.Constraint("Equal", 2, 3))
sketch17.addConstraint(Sketcher.Constraint("Equal", 3, 4))
sketch17.addConstraint(Sketcher.Constraint("Equal", 4, 5))
sketch17.addConstraint(Sketcher.Constraint("Horizontal", 0, 3, 1, 3))
sketch17.addConstraint(Sketcher.Constraint("Horizontal", 1, 3, 2, 3))
sketch17.addConstraint(Sketcher.Constraint("Horizontal", 3, 3, 4, 3))
sketch17.addConstraint(Sketcher.Constraint("Horizontal", 4, 3, 5, 3))
sketch17.addConstraint(Sketcher.Constraint("Vertical", 0, 3, 3, 3))
sketch17.addConstraint(Sketcher.Constraint("Vertical", 1, 3, 4, 3))
sketch17.addConstraint(Sketcher.Constraint("Vertical", 2, 3, 5, 3))
sketch17.addConstraint(Sketcher.Constraint("Diameter", 0, 5.0))
sketch17.addConstraint(Sketcher.Constraint("DistanceX", -1, 1, 0, 3, 28.0))
sketch17.addConstraint(Sketcher.Constraint("DistanceX", -1, 1, 1, 3, 18.0))
sketch17.addConstraint(Sketcher.Constraint("DistanceX", -1, 1, 2, 3, 8.0))
sketch17.addConstraint(Sketcher.Constraint("DistanceY", 3, 3, 0, 3, 114.5))
sketch17.addConstraint(Sketcher.Constraint("DistanceY", -1, 1, 0, 3, 68.513158))
pocket13 = doc.addObject("PartDesign::Pocket", "Pocket012")
body.addObject(pocket13)
pocket13.Profile = sketch17
pocket13.Length = 10

sketch18 = doc.addObject("Sketcher::SketchObject", "Sketch017")
body.addObject(sketch18)
sketch18.AttachmentSupport = (doc.YZ_Plane, [""])
sketch18.MapMode = "FlatFace"
sketch18.AttachmentOffset = App.Placement(Vector(0, 0, -58.210526), App.Rotation())
sketch18.addGeometry(Part.Circle(Vector(8.5, 0, 0), Vector(0, 0, 1), 2.5), False)
sketch18.addGeometry(Part.Circle(Vector(18.8, 0, 0), Vector(0, 0, 1), 2.5), False)
sketch18.addGeometry(Part.Circle(Vector(8.5, 25.4, 0), Vector(0, 0, 1), 2.5), False)
sketch18.addGeometry(Part.Circle(Vector(18.8, 25.4, 0), Vector(0, 0, 1), 2.5), False)
sketch18.addGeometry(Part.Circle(Vector(8.5, 50.4, 0), Vector(0, 0, 1), 2.5), False)
sketch18.addGeometry(Part.Circle(Vector(8.5, -23.6, 0), Vector(0, 0, 1), 2.5), False)
sketch18.addConstraint(Sketcher.Constraint("Equal", 0, 1))
sketch18.addConstraint(Sketcher.Constraint("Equal", 1, 2))
sketch18.addConstraint(Sketcher.Constraint("Equal", 2, 3))
sketch18.addConstraint(Sketcher.Constraint("Equal", 3, 4))
sketch18.addConstraint(Sketcher.Constraint("Equal", 4, 5))
sketch18.addConstraint(Sketcher.Constraint("PointOnObject", 0, 3, -1))
sketch18.addConstraint(Sketcher.Constraint("PointOnObject", 1, 3, -1))
sketch18.addConstraint(Sketcher.Constraint("Horizontal", 2, 3, 3, 3))
sketch18.addConstraint(Sketcher.Constraint("Vertical", 0, 3, 2, 3))
sketch18.addConstraint(Sketcher.Constraint("Vertical", 1, 3, 3, 3))
sketch18.addConstraint(Sketcher.Constraint("Vertical", 2, 3, 4, 3))
sketch18.addConstraint(Sketcher.Constraint("Vertical", 4, 3, 5, 3))
sketch18.addConstraint(Sketcher.Constraint("Diameter", 0, 5.0))
sketch18.addConstraint(Sketcher.Constraint("DistanceX", -1, 1, 0, 3, 8.527872))
sketch18.addConstraint(Sketcher.Constraint("DistanceX", -1, 1, 1, 3, 18.750861))
sketch18.addConstraint(Sketcher.Constraint("DistanceY", -1, 1, 4, 3, 50.386539))
sketch18.addConstraint(Sketcher.Constraint("DistanceY", 5, 3, 2, 3, 49.02975))
sketch18.addConstraint(Sketcher.Constraint("DistanceY", -1, 1, 2, 3, 25.400224))
pocket14 = doc.addObject("PartDesign::Pocket", "Pocket013")
body.addObject(pocket14)
pocket14.Profile = sketch18
pocket14.Length = 10

sketch19 = doc.addObject("Sketcher::SketchObject", "Sketch018")
body.addObject(sketch19)
sketch19.AttachmentSupport = (doc.XZ_Plane, [""])
sketch19.MapMode = "FlatFace"
sketch19.AttachmentOffset = App.Placement(Vector(0, 0, -3), App.Rotation())
sketch19.addGeometry(Part.Circle(Vector(19.8, 43.5, 0), Vector(0, 0, 1), 2.5), False)
sketch19.addGeometry(Part.Circle(Vector(19.8, -20.5, 0), Vector(0, 0, 1), 2.5), False)
sketch19.addConstraint(Sketcher.Constraint("Equal", 0, 1))
sketch19.addConstraint(Sketcher.Constraint("Vertical", 0, 3, 1, 3))
sketch19.addConstraint(Sketcher.Constraint("Diameter", 0, 5.0))
sketch19.addConstraint(Sketcher.Constraint("DistanceY", 1, 3, 0, 3, 64.0))
sketch19.addConstraint(Sketcher.Constraint("DistanceX", -1, 1, 0, 3, 19.789474))
sketch19.addConstraint(Sketcher.Constraint("DistanceY", -1, 1, 0, 3, 43.513158))
pocket15 = doc.addObject("PartDesign::Pocket", "Pocket014")
body.addObject(pocket15)
pocket15.Profile = sketch19
pocket15.Length = 10
pocket15.Reversed = True

sketch20 = doc.addObject("Sketcher::SketchObject", "Sketch019")
body.addObject(sketch20)
sketch20.AttachmentSupport = (doc.XZ_Plane, [""])
sketch20.MapMode = "FlatFace"
sketch20.AttachmentOffset = App.Placement(Vector(0, 0, -34.5), App.Rotation())
sketch20.addGeometry(Part.LineSegment(Vector(-109, 87, 0), Vector(-62, 87, 0)), False)
sketch20.addGeometry(Part.LineSegment(Vector(-62, 87, 0), Vector(-62, 12, 0)), False)
sketch20.addGeometry(Part.LineSegment(Vector(-62, 12, 0), Vector(41, 12, 0)), False)
sketch20.addGeometry(Part.LineSegment(Vector(41, 12, 0), Vector(41, -63, 0)), False)
sketch20.addGeometry(Part.LineSegment(Vector(41, -63, 0), Vector(-109, -63, 0)), False)
sketch20.addGeometry(Part.LineSegment(Vector(-109, -63, 0), Vector(-109, 87, 0)), False)
sketch20.addConstraint(Sketcher.Constraint("Coincident", 0, 2, 1, 1))
sketch20.addConstraint(Sketcher.Constraint("Coincident", 1, 2, 2, 1))
sketch20.addConstraint(Sketcher.Constraint("Coincident", 2, 2, 3, 1))
sketch20.addConstraint(Sketcher.Constraint("Coincident", 3, 2, 4, 1))
sketch20.addConstraint(Sketcher.Constraint("Coincident", 4, 2, 5, 1))
sketch20.addConstraint(Sketcher.Constraint("Coincident", 5, 2, 0, 1))
sketch20.addConstraint(Sketcher.Constraint("Horizontal", 0))
sketch20.addConstraint(Sketcher.Constraint("Vertical", 1))
sketch20.addConstraint(Sketcher.Constraint("Horizontal", 2))
sketch20.addConstraint(Sketcher.Constraint("Vertical", 3))
sketch20.addConstraint(Sketcher.Constraint("Horizontal", 4))
sketch20.addConstraint(Sketcher.Constraint("Vertical", 5))
sketch20.addConstraint(Sketcher.Constraint("Equal", 1, 3))
sketch20.addConstraint(Sketcher.Constraint("Equal", 4, 5))
sketch20.addConstraint(Sketcher.Constraint("DistanceX", 4, 2, 4, 1, 150.0))
sketch20.addConstraint(Sketcher.Constraint("DistanceX", 0, 1, 0, 2, 47.295715))
sketch20.addConstraint(Sketcher.Constraint("DistanceX", 0, 2, -1, 1, 61.914811))
sketch20.addConstraint(Sketcher.Constraint("DistanceY", -1, 1, 0, 2, 86.513158))
pocket16 = doc.addObject("PartDesign::Pocket", "Pocket015")
body.addObject(pocket16)
pocket16.Profile = sketch20
pocket16.Length = 40
pocket16.Reversed = True

doc.recompute()
